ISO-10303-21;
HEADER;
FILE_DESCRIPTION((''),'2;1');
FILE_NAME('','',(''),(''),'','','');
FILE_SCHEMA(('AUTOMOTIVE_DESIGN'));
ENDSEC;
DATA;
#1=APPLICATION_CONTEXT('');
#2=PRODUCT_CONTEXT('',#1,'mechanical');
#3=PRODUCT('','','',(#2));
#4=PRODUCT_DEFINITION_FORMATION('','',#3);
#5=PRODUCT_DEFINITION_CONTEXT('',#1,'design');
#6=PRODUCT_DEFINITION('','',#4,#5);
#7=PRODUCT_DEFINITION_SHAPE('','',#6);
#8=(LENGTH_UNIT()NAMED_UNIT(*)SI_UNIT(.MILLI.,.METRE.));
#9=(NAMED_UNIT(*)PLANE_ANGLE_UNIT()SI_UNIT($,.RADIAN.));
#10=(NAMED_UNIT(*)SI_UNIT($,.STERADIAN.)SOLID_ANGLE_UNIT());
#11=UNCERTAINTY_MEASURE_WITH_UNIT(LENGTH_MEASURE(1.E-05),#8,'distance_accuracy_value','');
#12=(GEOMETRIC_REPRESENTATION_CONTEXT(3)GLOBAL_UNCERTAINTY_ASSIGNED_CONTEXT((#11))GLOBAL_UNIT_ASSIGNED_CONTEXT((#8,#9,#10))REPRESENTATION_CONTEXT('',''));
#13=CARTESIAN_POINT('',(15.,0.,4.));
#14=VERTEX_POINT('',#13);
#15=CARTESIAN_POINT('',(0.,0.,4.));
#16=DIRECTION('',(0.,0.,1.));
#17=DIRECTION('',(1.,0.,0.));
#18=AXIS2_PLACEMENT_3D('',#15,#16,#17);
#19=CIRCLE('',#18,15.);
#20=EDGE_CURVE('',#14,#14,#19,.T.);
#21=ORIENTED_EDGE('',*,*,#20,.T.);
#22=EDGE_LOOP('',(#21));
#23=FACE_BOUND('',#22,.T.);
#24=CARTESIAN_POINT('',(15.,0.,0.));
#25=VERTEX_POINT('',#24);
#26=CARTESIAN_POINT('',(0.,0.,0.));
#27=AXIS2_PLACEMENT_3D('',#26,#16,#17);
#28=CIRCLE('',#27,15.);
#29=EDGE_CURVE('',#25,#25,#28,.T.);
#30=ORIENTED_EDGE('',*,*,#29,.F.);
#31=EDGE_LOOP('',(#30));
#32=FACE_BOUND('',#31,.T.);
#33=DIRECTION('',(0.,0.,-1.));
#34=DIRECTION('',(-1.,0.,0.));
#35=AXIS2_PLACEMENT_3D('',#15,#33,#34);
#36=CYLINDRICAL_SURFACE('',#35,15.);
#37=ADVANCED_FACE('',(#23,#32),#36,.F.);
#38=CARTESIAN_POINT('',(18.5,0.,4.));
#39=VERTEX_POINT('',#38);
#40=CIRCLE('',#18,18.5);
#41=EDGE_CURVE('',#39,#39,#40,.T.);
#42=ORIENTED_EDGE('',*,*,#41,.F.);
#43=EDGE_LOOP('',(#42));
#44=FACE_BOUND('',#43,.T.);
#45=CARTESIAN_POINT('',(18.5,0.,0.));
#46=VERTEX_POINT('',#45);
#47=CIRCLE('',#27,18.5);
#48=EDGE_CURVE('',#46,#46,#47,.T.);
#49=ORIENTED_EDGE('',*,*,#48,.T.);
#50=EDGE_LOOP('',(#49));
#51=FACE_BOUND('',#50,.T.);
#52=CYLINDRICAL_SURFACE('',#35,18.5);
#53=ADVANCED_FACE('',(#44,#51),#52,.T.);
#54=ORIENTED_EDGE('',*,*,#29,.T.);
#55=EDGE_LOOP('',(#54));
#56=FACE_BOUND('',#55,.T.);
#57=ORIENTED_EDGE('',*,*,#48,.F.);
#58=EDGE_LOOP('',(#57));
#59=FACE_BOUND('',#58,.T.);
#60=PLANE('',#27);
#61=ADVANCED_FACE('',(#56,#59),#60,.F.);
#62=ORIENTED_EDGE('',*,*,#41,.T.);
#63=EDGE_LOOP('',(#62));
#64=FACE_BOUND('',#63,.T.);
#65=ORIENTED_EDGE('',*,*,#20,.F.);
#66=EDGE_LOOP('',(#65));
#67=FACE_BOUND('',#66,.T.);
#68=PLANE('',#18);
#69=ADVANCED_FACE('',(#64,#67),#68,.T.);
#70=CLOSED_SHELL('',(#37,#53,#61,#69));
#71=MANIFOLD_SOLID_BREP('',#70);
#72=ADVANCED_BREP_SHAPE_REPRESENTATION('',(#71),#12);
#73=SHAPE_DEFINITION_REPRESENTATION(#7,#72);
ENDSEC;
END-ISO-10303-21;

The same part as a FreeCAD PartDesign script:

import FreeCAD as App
import Part
import Sketcher

doc = App.newDocument("Part")
body = doc.addObject("PartDesign::Body", "Body")

# Sketch on XY plane
sketch1 = body.newObject("Sketcher::SketchObject", "Sketch")
sketch1.AttachmentSupport = (doc.getObject("XY_Plane"), [""])
sketch1.MapMode = "FlatFace"
sketch1.addGeometry(Part.Circle(App.Vector(0, 0, 0), App.Vector(0, 0, 1), 18.5), False)
sketch1.addGeometry(Part.Circle(App.Vector(0, 0, 0), App.Vector(0, 0, 1), 15), False)
sketch1.addConstraint(Sketcher.Constraint("Coincident", 0, 3, -1, 1))
sketch1.addConstraint(Sketcher.Constraint("Coincident", 1, 3, -1, 1))
sketch1.addConstraint(Sketcher.Constraint("Diameter", 0, 37.0))
sketch1.addConstraint(Sketcher.Constraint("Diameter", 1, 30.0))
pad1 = body.newObject("PartDesign::Pad", "Pad")
pad1.Profile = sketch1
pad1.Length = 4

doc.recompute()
